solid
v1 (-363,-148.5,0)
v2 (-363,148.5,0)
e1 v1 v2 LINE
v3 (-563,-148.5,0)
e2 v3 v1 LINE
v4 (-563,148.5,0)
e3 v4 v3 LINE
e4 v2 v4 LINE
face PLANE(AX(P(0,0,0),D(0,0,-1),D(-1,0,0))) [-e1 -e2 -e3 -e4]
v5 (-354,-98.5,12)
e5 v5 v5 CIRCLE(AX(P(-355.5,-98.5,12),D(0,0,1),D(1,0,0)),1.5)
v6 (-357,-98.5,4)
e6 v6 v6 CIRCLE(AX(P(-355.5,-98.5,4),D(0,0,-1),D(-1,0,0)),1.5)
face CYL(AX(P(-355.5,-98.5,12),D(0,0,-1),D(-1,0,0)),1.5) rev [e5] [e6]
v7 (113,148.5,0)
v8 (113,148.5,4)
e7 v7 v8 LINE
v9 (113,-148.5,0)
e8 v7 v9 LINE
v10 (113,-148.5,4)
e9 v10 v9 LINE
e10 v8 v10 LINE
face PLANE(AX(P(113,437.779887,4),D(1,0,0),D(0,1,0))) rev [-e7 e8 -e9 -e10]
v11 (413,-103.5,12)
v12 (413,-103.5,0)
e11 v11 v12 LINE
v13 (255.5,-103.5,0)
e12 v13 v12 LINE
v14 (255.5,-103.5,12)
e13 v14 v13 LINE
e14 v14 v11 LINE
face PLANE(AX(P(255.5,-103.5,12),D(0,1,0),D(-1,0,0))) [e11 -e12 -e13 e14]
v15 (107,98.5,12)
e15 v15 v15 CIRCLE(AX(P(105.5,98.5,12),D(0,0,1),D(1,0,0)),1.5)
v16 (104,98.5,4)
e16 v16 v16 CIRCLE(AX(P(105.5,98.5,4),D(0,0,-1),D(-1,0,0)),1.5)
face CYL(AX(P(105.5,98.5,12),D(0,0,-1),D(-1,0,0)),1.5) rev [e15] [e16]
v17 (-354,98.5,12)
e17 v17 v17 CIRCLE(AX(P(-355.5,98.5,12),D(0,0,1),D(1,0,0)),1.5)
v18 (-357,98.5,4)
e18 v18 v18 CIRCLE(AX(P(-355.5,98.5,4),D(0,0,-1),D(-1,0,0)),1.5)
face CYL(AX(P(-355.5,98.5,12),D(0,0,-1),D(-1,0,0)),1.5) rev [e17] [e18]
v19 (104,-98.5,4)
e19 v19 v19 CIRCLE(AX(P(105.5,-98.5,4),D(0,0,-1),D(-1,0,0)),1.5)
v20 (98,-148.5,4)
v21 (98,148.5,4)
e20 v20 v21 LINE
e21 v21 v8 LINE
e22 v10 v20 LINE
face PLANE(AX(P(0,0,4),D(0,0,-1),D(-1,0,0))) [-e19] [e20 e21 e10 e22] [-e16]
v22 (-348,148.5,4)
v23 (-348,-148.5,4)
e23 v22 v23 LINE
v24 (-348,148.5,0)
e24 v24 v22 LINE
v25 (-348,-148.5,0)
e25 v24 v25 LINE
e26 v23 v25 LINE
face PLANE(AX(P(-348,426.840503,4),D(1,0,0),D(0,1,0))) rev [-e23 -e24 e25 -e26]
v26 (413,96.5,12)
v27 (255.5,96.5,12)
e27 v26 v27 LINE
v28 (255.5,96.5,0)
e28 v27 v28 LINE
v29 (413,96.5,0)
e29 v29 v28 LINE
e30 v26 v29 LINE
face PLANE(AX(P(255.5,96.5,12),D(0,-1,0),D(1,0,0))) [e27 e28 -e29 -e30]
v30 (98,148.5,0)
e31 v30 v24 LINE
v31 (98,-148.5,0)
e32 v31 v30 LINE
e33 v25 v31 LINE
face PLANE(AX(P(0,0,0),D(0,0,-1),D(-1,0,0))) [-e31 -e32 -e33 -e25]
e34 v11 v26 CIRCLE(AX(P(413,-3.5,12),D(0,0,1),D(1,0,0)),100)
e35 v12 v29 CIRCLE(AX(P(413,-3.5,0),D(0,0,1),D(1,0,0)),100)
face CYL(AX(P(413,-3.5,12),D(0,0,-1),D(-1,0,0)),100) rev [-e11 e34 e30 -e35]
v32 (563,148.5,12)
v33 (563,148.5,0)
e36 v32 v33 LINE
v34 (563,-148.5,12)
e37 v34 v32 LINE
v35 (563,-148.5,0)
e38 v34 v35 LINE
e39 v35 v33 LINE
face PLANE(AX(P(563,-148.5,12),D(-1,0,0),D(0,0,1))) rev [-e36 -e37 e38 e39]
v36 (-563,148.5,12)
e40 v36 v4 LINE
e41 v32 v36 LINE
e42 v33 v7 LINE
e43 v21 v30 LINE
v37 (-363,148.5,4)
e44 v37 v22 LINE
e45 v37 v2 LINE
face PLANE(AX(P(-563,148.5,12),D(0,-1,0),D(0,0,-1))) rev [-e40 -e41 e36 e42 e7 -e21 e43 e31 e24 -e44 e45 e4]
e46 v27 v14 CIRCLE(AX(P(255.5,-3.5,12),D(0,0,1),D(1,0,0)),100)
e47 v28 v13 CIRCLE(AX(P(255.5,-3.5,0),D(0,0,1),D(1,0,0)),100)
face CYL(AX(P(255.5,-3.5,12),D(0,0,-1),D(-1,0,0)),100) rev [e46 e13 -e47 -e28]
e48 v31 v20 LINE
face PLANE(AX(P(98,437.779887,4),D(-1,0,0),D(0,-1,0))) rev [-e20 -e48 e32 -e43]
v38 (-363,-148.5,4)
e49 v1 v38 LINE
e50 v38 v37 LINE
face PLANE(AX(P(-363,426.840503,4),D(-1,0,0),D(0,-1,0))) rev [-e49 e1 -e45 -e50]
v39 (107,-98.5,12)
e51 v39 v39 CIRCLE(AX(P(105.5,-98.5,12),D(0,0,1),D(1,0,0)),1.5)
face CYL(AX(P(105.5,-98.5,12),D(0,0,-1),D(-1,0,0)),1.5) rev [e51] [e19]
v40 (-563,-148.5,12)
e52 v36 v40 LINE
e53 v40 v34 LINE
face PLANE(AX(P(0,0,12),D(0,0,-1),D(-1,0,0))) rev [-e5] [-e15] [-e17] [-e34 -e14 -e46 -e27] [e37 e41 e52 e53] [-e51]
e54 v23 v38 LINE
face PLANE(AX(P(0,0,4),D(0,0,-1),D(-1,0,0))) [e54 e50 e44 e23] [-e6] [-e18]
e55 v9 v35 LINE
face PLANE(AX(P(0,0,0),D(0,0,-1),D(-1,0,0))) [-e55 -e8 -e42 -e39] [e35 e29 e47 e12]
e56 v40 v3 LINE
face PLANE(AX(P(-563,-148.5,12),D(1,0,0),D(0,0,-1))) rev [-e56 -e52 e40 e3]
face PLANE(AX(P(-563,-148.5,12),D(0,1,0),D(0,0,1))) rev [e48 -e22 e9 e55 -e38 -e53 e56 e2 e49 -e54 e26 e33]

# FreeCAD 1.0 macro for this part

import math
import FreeCAD as App
import Part
import Sketcher

V = App.Vector
Q = App.Units.Quantity

doc = App.newDocument("Part")
body = doc.addObject("PartDesign::Body", "Body")

sketch1 = doc.addObject("Sketcher::SketchObject", "Sketch")
body.addObject(sketch1)
sketch1.AttachmentSupport = (doc.XY_Plane, [""])
sketch1.MapMode = "FlatFace"
sketch1.addGeometry(Part.LineSegment(V(-563, 148.5, 0), V(-563, -148.5, 0)), False)
sketch1.addGeometry(Part.LineSegment(V(-563, -148.5, 0), V(563, -148.5, 0)), False)
sketch1.addGeometry(Part.LineSegment(V(563, -148.5, 0), V(563, 148.5, 0)), False)
sketch1.addGeometry(Part.LineSegment(V(563, 148.5, 0), V(-563, 148.5, 0)), False)
sketch1.addGeometry(Part.Circle(V(-355.5, -98.5, 0), V(0, 0, 1), 1.5), False)
sketch1.addGeometry(Part.Circle(V(105.5, -98.5, 0), V(0, 0, 1), 1.5), False)
sketch1.addGeometry(Part.ArcOfCircle(Part.Circle(V(255.5, -3.5, 0), V(0, 0, 1), 100), math.radians(90), math.radians(270)), False)
sketch1.addGeometry(Part.LineSegment(V(255.5, 96.5, 0), V(413, 96.5, 0)), False)
sketch1.addGeometry(Part.ArcOfCircle(Part.Circle(V(413, -3.5, 0), V(0, 0, 1), 100), math.radians(-90), math.radians(90)), False)
sketch1.addGeometry(Part.LineSegment(V(413, -103.5, 0), V(255.5, -103.5, 0)), False)
sketch1.addGeometry(Part.Circle(V(-355.5, 98.5, 0), V(0, 0, 1), 1.5), False)
sketch1.addGeometry(Part.Circle(V(105.5, 98.5, 0), V(0, 0, 1), 1.5), False)
sketch1.addConstraint(Sketcher.Constraint("Coincident", 0, 2, 1, 1))
sketch1.addConstraint(Sketcher.Constraint("Coincident", 1, 2, 2, 1))
sketch1.addConstraint(Sketcher.Constraint("Coincident", 2, 2, 3, 1))
sketch1.addConstraint(Sketcher.Constraint("Coincident", 3, 2, 0, 1))
sketch1.addConstraint(Sketcher.Constraint("Tangent", 6, 1, 7, 1))
sketch1.addConstraint(Sketcher.Constraint("Tangent", 7, 2, 8, 2))
sketch1.addConstraint(Sketcher.Constraint("Tangent", 8, 1, 9, 1))
sketch1.addConstraint(Sketcher.Constraint("Tangent", 9, 2, 6, 2))
sketch1.addConstraint(Sketcher.Constraint("Vertical", 0))
sketch1.addConstraint(Sketcher.Constraint("Horizontal", 1))
sketch1.addConstraint(Sketcher.Constraint("Vertical", 2))
sketch1.addConstraint(Sketcher.Constraint("Horizontal", 3))
sketch1.addConstraint(Sketcher.Constraint("Horizontal", 7))
sketch1.addConstraint(Sketcher.Constraint("Horizontal", 9))
sketch1.addConstraint(Sketcher.Constraint("Equal", 4, 5))
sketch1.addConstraint(Sketcher.Constraint("Equal", 5, 10))
sketch1.addConstraint(Sketcher.Constraint("Equal", 10, 11))
sketch1.addConstraint(Sketcher.Constraint("Symmetric", 0, 2, 2, 2, -1, 1))
sketch1.addConstraint(Sketcher.Constraint("Symmetric", 4, 3, 10, 3, -1))
sketch1.addConstraint(Sketcher.Constraint("Symmetric", 5, 3, 11, 3, -1))
sketch1.addConstraint(Sketcher.Constraint("Horizontal", 4, 3, 5, 3))
sketch1.addConstraint(Sketcher.Constraint("Diameter", 4, Q("3 mm")))
sketch1.addConstraint(Sketcher.Constraint("Radius", 6, Q("100 mm")))
sketch1.addConstraint(Sketcher.Constraint("DistanceX", 1, 1, 1, 2, Q("1126 mm")))
sketch1.addConstraint(Sketcher.Constraint("DistanceY", 0, 2, 0, 1, Q("297 mm")))
sketch1.addConstraint(Sketcher.Constraint("DistanceX", 7, 1, 7, 2, Q("157.5 mm")))
sketch1.addConstraint(Sketcher.Constraint("DistanceX", -1, 1, 8, 3, Q("413 mm")))
sketch1.addConstraint(Sketcher.Constraint("DistanceX", 4, 3, 5, 3, Q("461 mm")))
sketch1.addConstraint(Sketcher.Constraint("DistanceX", 5, 3, 6, 3, Q("150 mm")))
sketch1.addConstraint(Sketcher.Constraint("DistanceY", 5, 3, 6, 3, Q("95 mm")))
sketch1.addConstraint(Sketcher.Constraint("DistanceY", 4, 3, 10, 3, Q("197 mm")))
pad1 = doc.addObject("PartDesign::Pad", "Pad")
body.addObject(pad1)
pad1.Profile = sketch1
pad1.Length = 12

sketch2 = doc.addObject("Sketcher::SketchObject", "Sketch001")
body.addObject(sketch2)
sketch2.AttachmentSupport = (doc.XY_Plane, [""])
sketch2.MapMode = "FlatFace"
sketch2.addGeometry(Part.LineSegment(V(113, 437.779887, 0), V(113, -240.779887, 0)), False)
sketch2.addGeometry(Part.LineSegment(V(113, -240.779887, 0), V(98, -240.779887, 0)), False)
sketch2.addGeometry(Part.LineSegment(V(98, -240.779887, 0), V(98, 437.779887, 0)), False)
sketch2.addGeometry(Part.LineSegment(V(98, 437.779887, 0), V(113, 437.779887, 0)), False)
sketch2.addGeometry(Part.LineSegment(V(-348, 426.840503, 0), V(-348, -229.840503, 0)), False)
sketch2.addGeometry(Part.LineSegment(V(-348, -229.840503, 0), V(-363, -229.840503, 0)), False)
sketch2.addGeometry(Part.LineSegment(V(-363, -229.840503, 0), V(-363, 426.840503, 0)), False)
sketch2.addGeometry(Part.LineSegment(V(-363, 426.840503, 0), V(-348, 426.840503, 0)), False)
sketch2.addConstraint(Sketcher.Constraint("Coincident", 0, 2, 1, 1))
sketch2.addConstraint(Sketcher.Constraint("Coincident", 1, 2, 2, 1))
sketch2.addConstraint(Sketcher.Constraint("Coincident", 2, 2, 3, 1))
sketch2.addConstraint(Sketcher.Constraint("Coincident", 3, 2, 0, 1))
sketch2.addConstraint(Sketcher.Constraint("Coincident", 4, 2, 5, 1))
sketch2.addConstraint(Sketcher.Constraint("Coincident", 5, 2, 6, 1))
sketch2.addConstraint(Sketcher.Constraint("Coincident", 6, 2, 7, 1))
sketch2.addConstraint(Sketcher.Constraint("Coincident", 7, 2, 4, 1))
sketch2.addConstraint(Sketcher.Constraint("Vertical", 0))
sketch2.addConstraint(Sketcher.Constraint("Horizontal", 1))
sketch2.addConstraint(Sketcher.Constraint("Vertical", 2))
sketch2.addConstraint(Sketcher.Constraint("Horizontal", 3))
sketch2.addConstraint(Sketcher.Constraint("Vertical", 4))
sketch2.addConstraint(Sketcher.Constraint("Horizontal", 5))
sketch2.addConstraint(Sketcher.Constraint("Vertical", 6))
sketch2.addConstraint(Sketcher.Constraint("Horizontal", 7))
sketch2.addConstraint(Sketcher.Constraint("Equal", 3, 5))
sketch2.addConstraint(Sketcher.Constraint("DistanceX", 1, 2, 1, 1, Q("15 mm")))
sketch2.addConstraint(Sketcher.Constraint("DistanceX", -1, 1, 0, 2, Q("113 mm")))
sketch2.addConstraint(Sketcher.Constraint("DistanceX", 4, 2, -1, 1, Q("348 mm")))
sketch2.addConstraint(Sketcher.Constraint("DistanceY", 0, 2, 0, 1, Q("678.559774 mm")))
sketch2.addConstraint(Sketcher.Constraint("DistanceY", 4, 2, 4, 1, Q("656.681007 mm")))
sketch2.addConstraint(Sketcher.Constraint("DistanceY", 4, 2, 2, 2, Q("667.62039 mm")))
sketch2.addConstraint(Sketcher.Constraint("DistanceY", 0, 2, -1, 1, Q("240.779887 mm")))
pocket1 = doc.addObject("PartDesign::Pocket", "Pocket")
body.addObject(pocket1)
pocket1.Profile = sketch2
pocket1.Length = 4
pocket1.Reversed = True

doc.recompute()
